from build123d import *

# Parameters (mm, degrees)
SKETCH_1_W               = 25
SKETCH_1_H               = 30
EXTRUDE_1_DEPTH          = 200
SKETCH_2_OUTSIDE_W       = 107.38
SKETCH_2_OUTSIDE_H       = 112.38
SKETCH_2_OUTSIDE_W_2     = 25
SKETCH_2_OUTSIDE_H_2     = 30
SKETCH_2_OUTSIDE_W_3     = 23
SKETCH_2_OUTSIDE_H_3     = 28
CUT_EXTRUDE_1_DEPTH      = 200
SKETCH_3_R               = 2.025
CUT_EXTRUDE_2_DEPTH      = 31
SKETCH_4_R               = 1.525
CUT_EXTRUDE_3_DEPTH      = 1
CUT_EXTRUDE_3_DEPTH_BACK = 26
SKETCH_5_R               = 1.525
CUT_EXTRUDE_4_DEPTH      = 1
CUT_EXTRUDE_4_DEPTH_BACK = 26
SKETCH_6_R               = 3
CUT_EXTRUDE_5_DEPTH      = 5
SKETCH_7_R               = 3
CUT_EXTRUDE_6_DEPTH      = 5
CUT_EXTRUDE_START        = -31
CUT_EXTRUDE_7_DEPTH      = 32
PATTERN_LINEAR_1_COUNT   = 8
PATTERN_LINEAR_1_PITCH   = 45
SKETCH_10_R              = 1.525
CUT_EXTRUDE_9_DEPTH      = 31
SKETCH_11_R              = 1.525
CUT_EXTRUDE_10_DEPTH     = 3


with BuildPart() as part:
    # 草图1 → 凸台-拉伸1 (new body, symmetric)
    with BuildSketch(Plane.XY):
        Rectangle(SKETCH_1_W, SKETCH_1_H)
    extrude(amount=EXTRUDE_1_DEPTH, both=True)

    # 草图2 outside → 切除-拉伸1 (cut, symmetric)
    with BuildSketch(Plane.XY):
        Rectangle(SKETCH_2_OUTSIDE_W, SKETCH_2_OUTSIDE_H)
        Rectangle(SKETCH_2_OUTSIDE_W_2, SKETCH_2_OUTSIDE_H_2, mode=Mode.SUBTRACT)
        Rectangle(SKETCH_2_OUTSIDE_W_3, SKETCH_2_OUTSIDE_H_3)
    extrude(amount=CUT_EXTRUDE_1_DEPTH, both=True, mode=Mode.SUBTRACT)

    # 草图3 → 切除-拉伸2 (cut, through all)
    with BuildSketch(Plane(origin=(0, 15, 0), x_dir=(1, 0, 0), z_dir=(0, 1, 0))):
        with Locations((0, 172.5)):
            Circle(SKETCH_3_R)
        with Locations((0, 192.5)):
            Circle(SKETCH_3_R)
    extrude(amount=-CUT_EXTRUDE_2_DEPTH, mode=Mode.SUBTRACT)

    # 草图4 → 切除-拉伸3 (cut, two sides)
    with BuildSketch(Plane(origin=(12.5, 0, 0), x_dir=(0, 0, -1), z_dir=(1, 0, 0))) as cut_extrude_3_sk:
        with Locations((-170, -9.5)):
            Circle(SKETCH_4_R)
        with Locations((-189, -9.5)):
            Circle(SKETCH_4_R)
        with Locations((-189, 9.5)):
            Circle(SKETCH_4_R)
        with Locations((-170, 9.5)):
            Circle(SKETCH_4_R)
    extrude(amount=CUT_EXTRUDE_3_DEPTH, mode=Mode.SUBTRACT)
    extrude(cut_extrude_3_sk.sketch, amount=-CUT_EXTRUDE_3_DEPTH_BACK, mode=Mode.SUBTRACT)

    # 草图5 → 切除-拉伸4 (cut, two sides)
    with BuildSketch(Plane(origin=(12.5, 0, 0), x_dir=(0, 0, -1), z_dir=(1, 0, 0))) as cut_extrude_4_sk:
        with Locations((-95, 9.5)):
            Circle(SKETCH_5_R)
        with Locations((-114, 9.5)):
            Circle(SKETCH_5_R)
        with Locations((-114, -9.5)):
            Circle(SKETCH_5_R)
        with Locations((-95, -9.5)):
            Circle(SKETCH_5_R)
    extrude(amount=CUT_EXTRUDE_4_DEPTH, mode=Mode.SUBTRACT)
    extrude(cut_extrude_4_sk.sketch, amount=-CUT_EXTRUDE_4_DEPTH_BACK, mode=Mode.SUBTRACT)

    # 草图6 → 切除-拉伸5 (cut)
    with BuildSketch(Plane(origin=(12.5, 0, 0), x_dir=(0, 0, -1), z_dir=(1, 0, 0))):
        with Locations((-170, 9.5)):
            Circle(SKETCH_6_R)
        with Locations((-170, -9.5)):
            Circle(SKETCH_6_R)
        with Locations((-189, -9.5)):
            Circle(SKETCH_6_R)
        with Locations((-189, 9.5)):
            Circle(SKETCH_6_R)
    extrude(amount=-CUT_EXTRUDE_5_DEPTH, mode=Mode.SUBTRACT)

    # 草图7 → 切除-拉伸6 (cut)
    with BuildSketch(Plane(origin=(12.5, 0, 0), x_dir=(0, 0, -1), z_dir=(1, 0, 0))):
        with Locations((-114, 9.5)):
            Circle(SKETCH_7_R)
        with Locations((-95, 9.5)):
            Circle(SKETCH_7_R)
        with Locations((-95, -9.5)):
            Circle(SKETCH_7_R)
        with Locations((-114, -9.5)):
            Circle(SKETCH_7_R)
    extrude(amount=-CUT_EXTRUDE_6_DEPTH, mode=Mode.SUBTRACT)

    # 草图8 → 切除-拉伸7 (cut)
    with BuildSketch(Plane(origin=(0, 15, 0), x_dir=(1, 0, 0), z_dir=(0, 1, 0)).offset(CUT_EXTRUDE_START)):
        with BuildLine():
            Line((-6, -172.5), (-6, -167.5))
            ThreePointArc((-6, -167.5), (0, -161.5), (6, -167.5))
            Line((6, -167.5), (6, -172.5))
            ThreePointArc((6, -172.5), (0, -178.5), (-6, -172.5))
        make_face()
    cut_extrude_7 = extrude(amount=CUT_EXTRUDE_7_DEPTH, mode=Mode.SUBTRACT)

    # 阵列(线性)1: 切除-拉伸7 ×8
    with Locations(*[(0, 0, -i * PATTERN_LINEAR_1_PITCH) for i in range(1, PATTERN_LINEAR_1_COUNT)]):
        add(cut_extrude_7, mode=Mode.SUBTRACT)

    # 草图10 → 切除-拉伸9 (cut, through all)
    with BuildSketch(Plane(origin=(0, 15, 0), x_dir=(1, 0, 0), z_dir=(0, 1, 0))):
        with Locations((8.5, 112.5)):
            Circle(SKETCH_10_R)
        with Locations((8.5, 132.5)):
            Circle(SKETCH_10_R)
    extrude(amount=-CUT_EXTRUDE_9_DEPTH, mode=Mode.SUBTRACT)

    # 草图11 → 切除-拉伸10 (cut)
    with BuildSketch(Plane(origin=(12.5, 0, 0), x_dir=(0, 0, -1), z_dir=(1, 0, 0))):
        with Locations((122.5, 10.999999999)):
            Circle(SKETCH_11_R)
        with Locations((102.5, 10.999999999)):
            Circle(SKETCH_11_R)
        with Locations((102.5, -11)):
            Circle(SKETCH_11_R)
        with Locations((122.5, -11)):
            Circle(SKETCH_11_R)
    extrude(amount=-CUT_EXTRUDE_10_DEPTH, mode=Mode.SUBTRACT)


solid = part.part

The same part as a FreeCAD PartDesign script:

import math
import FreeCAD as App
import Part
import Sketcher

doc = App.newDocument("Part")
params = doc.addObject("Spreadsheet::Sheet", "Params")
for row, (alias, value) in enumerate([
    ("sketch1_width", "25 mm"),
    ("sketch1_height", "30 mm"),
    ("pad1_length", "400 mm"),
    ("sketch2_width", "25 mm"),
    ("sketch2_width2", "23 mm"),
    ("sketch2_height", "30 mm"),
    ("sketch2_height2", "28 mm"),
    ("sketch2_width3", "107.38 mm"),
    ("pocket1_length", "400 mm"),
    ("sketch3_diameter", "4.05 mm"),
    ("sketch4_diameter", "3.05 mm"),
    ("sketch5_diameter", "3.05 mm"),
    ("sketch6_diameter", "6 mm"),
    ("pocket5_length", "5 mm"),
    ("sketch7_diameter", "6 mm"),
    ("pocket6_length", "5 mm"),
    ("sketch8_radius", "6 mm"),
    ("sketch8_height", "5 mm"),
    ("pocket7_length", "32 mm"),
    ("linearpattern_pitch", "45 mm"),
    ("sketch9_diameter", "3.05 mm"),
    ("sketch10_diameter", "3.05 mm"),
    ("pocket9_length", "3 mm"),
], start=1):
    params.set(f"A{row}", alias)
    params.set(f"B{row}", "=" + value)
    params.setAlias(f"B{row}", alias)

body = doc.addObject("PartDesign::Body", "Body")

# Sketch on XY plane
sketch1 = body.newObject("Sketcher::SketchObject", "Sketch")
sketch1.AttachmentSupport = (doc.getObject("XY_Plane"), [""])
sketch1.MapMode = "FlatFace"
sketch1.addGeometry(Part.LineSegment(App.Vector(-12, 15, 0), App.Vector(-12, -15, 0)), False)
sketch1.addGeometry(Part.LineSegment(App.Vector(-12, -15, 0), App.Vector(12, -15, 0)), False)
sketch1.addGeometry(Part.LineSegment(App.Vector(12, -15, 0), App.Vector(12, 15, 0)), False)
sketch1.addGeometry(Part.LineSegment(App.Vector(12, 15, 0), App.Vector(-12, 15, 0)), False)
sketch1.addConstraint(Sketcher.Constraint("Coincident", 0, 2, 1, 1))
sketch1.addConstraint(Sketcher.Constraint("Coincident", 1, 2, 2, 1))
sketch1.addConstraint(Sketcher.Constraint("Coincident", 2, 2, 3, 1))
sketch1.addConstraint(Sketcher.Constraint("Coincident", 3, 2, 0, 1))
sketch1.addConstraint(Sketcher.Constraint("Vertical", 0))
sketch1.addConstraint(Sketcher.Constraint("Horizontal", 1))
sketch1.addConstraint(Sketcher.Constraint("Vertical", 2))
sketch1.addConstraint(Sketcher.Constraint("Horizontal", 3))
sketch1.addConstraint(Sketcher.Constraint("Symmetric", 0, 2, 2, 2, -1, 1))
sketch1.addConstraint(Sketcher.Constraint("DistanceX", 1, 1, 1, 2, 25.0))
sketch1.addConstraint(Sketcher.Constraint("DistanceY", 0, 2, 0, 1, 30.0))
sketch1.setExpression("Constraints[9]", "Params.sketch1_width")
sketch1.setExpression("Constraints[10]", "Params.sketch1_height")
pad1 = body.newObject("PartDesign::Pad", "Pad")
pad1.Profile = sketch1
pad1.setExpression("Length", "Params.pad1_length")
pad1.Midplane = True

# Sketch on XY plane
sketch2 = body.newObject("Sketcher::SketchObject", "Sketch001")
sketch2.AttachmentSupport = (doc.getObject("XY_Plane"), [""])
sketch2.MapMode = "FlatFace"
sketch2.addGeometry(Part.LineSegment(App.Vector(-54, 56, 0), App.Vector(-54, -56, 0)), False)
sketch2.addGeometry(Part.LineSegment(App.Vector(-54, -56, 0), App.Vector(54, -56, 0)), False)
sketch2.addGeometry(Part.LineSegment(App.Vector(54, -56, 0), App.Vector(54, 56, 0)), False)
sketch2.addGeometry(Part.LineSegment(App.Vector(54, 56, 0), App.Vector(-54, 56, 0)), False)
sketch2.addGeometry(Part.LineSegment(App.Vector(12, -15, 0), App.Vector(-12, -15, 0)), False)
sketch2.addGeometry(Part.LineSegment(App.Vector(-12, -15, 0), App.Vector(-12, 15, 0)), False)
sketch2.addGeometry(Part.LineSegment(App.Vector(-12, 15, 0), App.Vector(12, 15, 0)), False)
sketch2.addGeometry(Part.LineSegment(App.Vector(12, 15, 0), App.Vector(12, -15, 0)), False)
sketch2.addGeometry(Part.LineSegment(App.Vector(-12, 14, 0), App.Vector(-12, -14, 0)), False)
sketch2.addGeometry(Part.LineSegment(App.Vector(-12, -14, 0), App.Vector(12, -14, 0)), False)
sketch2.addGeometry(Part.LineSegment(App.Vector(12, -14, 0), App.Vector(12, 14, 0)), False)
sketch2.addGeometry(Part.LineSegment(App.Vector(12, 14, 0), App.Vector(-12, 14, 0)), False)
sketch2.addConstraint(Sketcher.Constraint("Coincident", 0, 2, 1, 1))
sketch2.addConstraint(Sketcher.Constraint("Coincident", 1, 2, 2, 1))
sketch2.addConstraint(Sketcher.Constraint("Coincident", 2, 2, 3, 1))
sketch2.addConstraint(Sketcher.Constraint("Coincident", 3, 2, 0, 1))
sketch2.addConstraint(Sketcher.Constraint("Coincident", 4, 2, 5, 1))
sketch2.addConstraint(Sketcher.Constraint("Coincident", 5, 2, 6, 1))
sketch2.addConstraint(Sketcher.Constraint("Coincident", 6, 2, 7, 1))
sketch2.addConstraint(Sketcher.Constraint("Coincident", 7, 2, 4, 1))
sketch2.addConstraint(Sketcher.Constraint("Coincident", 8, 2, 9, 1))
sketch2.addConstraint(Sketcher.Constraint("Coincident", 9, 2, 10, 1))
sketch2.addConstraint(Sketcher.Constraint("Coincident", 10, 2, 11, 1))
sketch2.addConstraint(Sketcher.Constraint("Coincident", 11, 2, 8, 1))
sketch2.addConstraint(Sketcher.Constraint("Vertical", 0))
sketch2.addConstraint(Sketcher.Constraint("Horizontal", 1))
sketch2.addConstraint(Sketcher.Constraint("Vertical", 2))
sketch2.addConstraint(Sketcher.Constraint("Horizontal", 3))
sketch2.addConstraint(Sketcher.Constraint("Horizontal", 4))
sketch2.addConstraint(Sketcher.Constraint("Vertical", 5))
sketch2.addConstraint(Sketcher.Constraint("Horizontal", 6))
sketch2.addConstraint(Sketcher.Constraint("Vertical", 7))
sketch2.addConstraint(Sketcher.Constraint("Vertical", 8))
sketch2.addConstraint(Sketcher.Constraint("Horizontal", 9))
sketch2.addConstraint(Sketcher.Constraint("Vertical", 10))
sketch2.addConstraint(Sketcher.Constraint("Horizontal", 11))
sketch2.addConstraint(Sketcher.Constraint("Symmetric", 0, 2, 2, 2, -1, 1))
sketch2.addConstraint(Sketcher.Constraint("Symmetric", 4, 2, 6, 2, -1, 1))
sketch2.addConstraint(Sketcher.Constraint("Symmetric", 8, 2, 10, 2, -1, 1))
sketch2.addConstraint(Sketcher.Constraint("DistanceX", 4, 2, 4, 1, 25.0))
sketch2.addConstraint(Sketcher.Constraint("DistanceX", 9, 1, 9, 2, 23.0))
sketch2.addConstraint(Sketcher.Constraint("DistanceY", 5, 1, 5, 2, 30.0))
sketch2.addConstraint(Sketcher.Constraint("DistanceY", 8, 2, 8, 1, 28.0))
sketch2.addConstraint(Sketcher.Constraint("DistanceX", 1, 1, 1, 2, 107.38))
sketch2.addConstraint(Sketcher.Constraint("DistanceY", 0, 2, 0, 1, 112.38))
sketch2.setExpression("Constraints[27]", "Params.sketch2_width")
sketch2.setExpression("Constraints[28]", "Params.sketch2_width2")
sketch2.setExpression("Constraints[29]", "Params.sketch2_height")
sketch2.setExpression("Constraints[30]", "Params.sketch2_height2")
sketch2.setExpression("Constraints[31]", "Params.sketch2_width3")
pocket1 = body.newObject("PartDesign::Pocket", "Pocket")
pocket1.Profile = sketch2
pocket1.setExpression("Length", "Params.pocket1_length")
pocket1.Midplane = True

# Sketch on XZ plane
sketch3 = body.newObject("Sketcher::SketchObject", "Sketch002")
sketch3.AttachmentSupport = (doc.getObject("XZ_Plane"), [""])
sketch3.MapMode = "FlatFace"
sketch3.AttachmentOffset = App.Placement(App.Vector(0, 0, -15), App.Rotation())
sketch3.addGeometry(Part.Circle(App.Vector(0, -172.5, 0), App.Vector(0, 0, 1), 2), False)
sketch3.addGeometry(Part.Circle(App.Vector(0, -192.5, 0), App.Vector(0, 0, 1), 2), False)
sketch3.addConstraint(Sketcher.Constraint("Equal", 0, 1))
sketch3.addConstraint(Sketcher.Constraint("PointOnObject", 0, 3, -2))
sketch3.addConstraint(Sketcher.Constraint("PointOnObject", 1, 3, -2))
sketch3.addConstraint(Sketcher.Constraint("Diameter", 0, 4.05))
sketch3.addConstraint(Sketcher.Constraint("DistanceY", 1, 3, 0, 3, 20.0))
sketch3.addConstraint(Sketcher.Constraint("DistanceY", 0, 3, -1, 1, 172.5))
sketch3.setExpression("Constraints[3]", "Params.sketch3_diameter")
pocket2 = body.newObject("PartDesign::Pocket", "Pocket001")
pocket2.Profile = sketch3
pocket2.Type = "ThroughAll"
pocket2.Reversed = True

# Sketch on YZ plane
sketch4 = body.newObject("Sketcher::SketchObject", "Sketch003")
sketch4.AttachmentSupport = (doc.getObject("YZ_Plane"), [""])
sketch4.MapMode = "FlatFace"
sketch4.AttachmentOffset = App.Placement(App.Vector(0, 0, 12.5), App.Rotation())
sketch4.addGeometry(Part.Circle(App.Vector(-9.5, 170, 0), App.Vector(0, 0, 1), 1.5), False)
sketch4.addGeometry(Part.Circle(App.Vector(-9.5, 189, 0), App.Vector(0, 0, 1), 1.5), False)
sketch4.addGeometry(Part.Circle(App.Vector(9.5, 189, 0), App.Vector(0, 0, 1), 1.5), False)
sketch4.addGeometry(Part.Circle(App.Vector(9.5, 170, 0), App.Vector(0, 0, 1), 1.5), False)
sketch4.addConstraint(Sketcher.Constraint("Equal", 0, 1))
sketch4.addConstraint(Sketcher.Constraint("Equal", 1, 2))
sketch4.addConstraint(Sketcher.Constraint("Equal", 2, 3))
sketch4.addConstraint(Sketcher.Constraint("Symmetric", 1, 3, 2, 3, -2))
sketch4.addConstraint(Sketcher.Constraint("Symmetric", 0, 3, 3, 3, -2))
sketch4.addConstraint(Sketcher.Constraint("Vertical", 0, 3, 1, 3))
sketch4.addConstraint(Sketcher.Constraint("Diameter", 0, 3.05))
sketch4.addConstraint(Sketcher.Constraint("DistanceY", -1, 1, 0, 3, 170.0))
sketch4.addConstraint(Sketcher.Constraint("DistanceY", -1, 1, 1, 3, 189.0))
sketch4.addConstraint(Sketcher.Constraint("DistanceX", 1, 3, 2, 3, 19.0))
sketch4.setExpression("Constraints[6]", "Params.sketch4_diameter")
pocket3 = body.newObject("PartDesign::Pocket", "Pocket002")
pocket3.Profile = sketch4
pocket3.Type = "ThroughAll"
pocket3.Midplane = True

# Sketch on YZ plane
sketch5 = body.newObject("Sketcher::SketchObject", "Sketch004")
sketch5.AttachmentSupport = (doc.getObject("YZ_Plane"), [""])
sketch5.MapMode = "FlatFace"
sketch5.AttachmentOffset = App.Placement(App.Vector(0, 0, 12.5), App.Rotation())
sketch5.addGeometry(Part.Circle(App.Vector(9.5, 95, 0), App.Vector(0, 0, 1), 1.5), False)
sketch5.addGeometry(Part.Circle(App.Vector(9.5, 114, 0), App.Vector(0, 0, 1), 1.5), False)
sketch5.addGeometry(Part.Circle(App.Vector(-9.5, 114, 0), App.Vector(0, 0, 1), 1.5), False)
sketch5.addGeometry(Part.Circle(App.Vector(-9.5, 95, 0), App.Vector(0, 0, 1), 1.5), False)
sketch5.addConstraint(Sketcher.Constraint("Equal", 0, 1))
sketch5.addConstraint(Sketcher.Constraint("Equal", 1, 2))
sketch5.addConstraint(Sketcher.Constraint("Equal", 2, 3))
sketch5.addConstraint(Sketcher.Constraint("Symmetric", 1, 3, 2, 3, -2))
sketch5.addConstraint(Sketcher.Constraint("Symmetric", 0, 3, 3, 3, -2))
sketch5.addConstraint(Sketcher.Constraint("Vertical", 0, 3, 1, 3))
sketch5.addConstraint(Sketcher.Constraint("Diameter", 0, 3.05))
sketch5.addConstraint(Sketcher.Constraint("DistanceY", -1, 1, 0, 3, 95.0))
sketch5.addConstraint(Sketcher.Constraint("DistanceY", -1, 1, 1, 3, 114.0))
sketch5.addConstraint(Sketcher.Constraint("DistanceX", 2, 3, 1, 3, 19.0))
sketch5.setExpression("Constraints[6]", "Params.sketch5_diameter")
pocket4 = body.newObject("PartDesign::Pocket", "Pocket003")
pocket4.Profile = sketch5
pocket4.Type = "ThroughAll"
pocket4.Midplane = True

# Sketch on YZ plane
sketch6 = body.newObject("Sketcher::SketchObject", "Sketch005")
sketch6.AttachmentSupport = (doc.getObject("YZ_Plane"), [""])
sketch6.MapMode = "FlatFace"
sketch6.AttachmentOffset = App.Placement(App.Vector(0, 0, 12.5), App.Rotation())
sketch6.addGeometry(Part.Circle(App.Vector(9.5, 170, 0), App.Vector(0, 0, 1), 3), False)
sketch6.addGeometry(Part.Circle(App.Vector(-9.5, 170, 0), App.Vector(0, 0, 1), 3), False)
sketch6.addGeometry(Part.Circle(App.Vector(-9.5, 189, 0), App.Vector(0, 0, 1), 3), False)
sketch6.addGeometry(Part.Circle(App.Vector(9.5, 189, 0), App.Vector(0, 0, 1), 3), False)
sketch6.addConstraint(Sketcher.Constraint("Equal", 0, 1))
sketch6.addConstraint(Sketcher.Constraint("Equal", 1, 2))
sketch6.addConstraint(Sketcher.Constraint("Equal", 2, 3))
sketch6.addConstraint(Sketcher.Constraint("Symmetric", 0, 3, 1, 3, -2))
sketch6.addConstraint(Sketcher.Constraint("Symmetric", 2, 3, 3, 3, -2))
sketch6.addConstraint(Sketcher.Constraint("Vertical", 1, 3, 2, 3))
sketch6.addConstraint(Sketcher.Constraint("Diameter", 0, 6.0))
sketch6.addConstraint(Sketcher.Constraint("DistanceY", -1, 1, 0, 3, 170.0))
sketch6.addConstraint(Sketcher.Constraint("DistanceY", -1, 1, 2, 3, 189.0))
sketch6.addConstraint(Sketcher.Constraint("DistanceX", 1, 3, 0, 3, 19.0))
sketch6.setExpression("Constraints[6]", "Params.sketch6_diameter")
pocket5 = body.newObject("PartDesign::Pocket", "Pocket004")
pocket5.Profile = sketch6
pocket5.setExpression("Length", "Params.pocket5_length")

# Sketch on YZ plane
sketch7 = body.newObject("Sketcher::SketchObject", "Sketch006")
sketch7.AttachmentSupport = (doc.getObject("YZ_Plane"), [""])
sketch7.MapMode = "FlatFace"
sketch7.AttachmentOffset = App.Placement(App.Vector(0, 0, 12.5), App.Rotation())
sketch7.addGeometry(Part.Circle(App.Vector(9.5, 114, 0), App.Vector(0, 0, 1), 3), False)
sketch7.addGeometry(Part.Circle(App.Vector(9.5, 95, 0), App.Vector(0, 0, 1), 3), False)
sketch7.addGeometry(Part.Circle(App.Vector(-9.5, 95, 0), App.Vector(0, 0, 1), 3), False)
sketch7.addGeometry(Part.Circle(App.Vector(-9.5, 114, 0), App.Vector(0, 0, 1), 3), False)
sketch7.addConstraint(Sketcher.Constraint("Equal", 0, 1))
sketch7.addConstraint(Sketcher.Constraint("Equal", 1, 2))
sketch7.addConstraint(Sketcher.Constraint("Equal", 2, 3))
sketch7.addConstraint(Sketcher.Constraint("Symmetric", 1, 3, 2, 3, -2))
sketch7.addConstraint(Sketcher.Constraint("Symmetric", 0, 3, 3, 3, -2))
sketch7.addConstraint(Sketcher.Constraint("Vertical", 0, 3, 1, 3))
sketch7.addConstraint(Sketcher.Constraint("Diameter", 0, 6.0))
sketch7.addConstraint(Sketcher.Constraint("DistanceY", -1, 1, 0, 3, 114.0))
sketch7.addConstraint(Sketcher.Constraint("DistanceY", -1, 1, 1, 3, 95.0))
sketch7.addConstraint(Sketcher.Constraint("DistanceX", 2, 3, 1, 3, 19.0))
sketch7.setExpression("Constraints[6]", "Params.sketch7_diameter")
pocket6 = body.newObject("PartDesign::Pocket", "Pocket005")
pocket6.Profile = sketch7
pocket6.setExpression("Length", "Params.pocket6_length")

# Sketch on XZ plane
sketch8 = body.newObject("Sketcher::SketchObject", "Sketch007")
sketch8.AttachmentSupport = (doc.getObject("XZ_Plane"), [""])
sketch8.MapMode = "FlatFace"
sketch8.AttachmentOffset = App.Placement(App.Vector(0, 0, 16), App.Rotation())
sketch8.addGeometry(Part.LineSegment(App.Vector(-6, 168, 0), App.Vector(-6, 172, 0)), False)
sketch8.addGeometry(Part.ArcOfCircle(Part.Circle(App.Vector(0, 172, 0), App.Vector(0, 0, 1), 6), math.radians(0), math.radians(180)), False)
sketch8.addGeometry(Part.LineSegment(App.Vector(6, 172, 0), App.Vector(6, 168, 0)), False)
sketch8.addGeometry(Part.ArcOfCircle(Part.Circle(App.Vector(0, 168, 0), App.Vector(0, 0, 1), 6), math.radians(180), math.radians(360)), False)
sketch8.addConstraint(Sketcher.Constraint("Tangent", 0, 2, 1, 2))
sketch8.addConstraint(Sketcher.Constraint("Tangent", 1, 1, 2, 1))
sketch8.addConstraint(Sketcher.Constraint("Tangent", 2, 2, 3, 2))
sketch8.addConstraint(Sketcher.Constraint("Tangent", 3, 1, 0, 1))
sketch8.addConstraint(Sketcher.Constraint("Vertical", 0))
sketch8.addConstraint(Sketcher.Constraint("Vertical", 2))
sketch8.addConstraint(Sketcher.Constraint("PointOnObject", 1, 3, -2))
sketch8.addConstraint(Sketcher.Constraint("Radius", 1, 6.0))
sketch8.addConstraint(Sketcher.Constraint("DistanceY", 0, 1, 0, 2, 5.0))
sketch8.addConstraint(Sketcher.Constraint("DistanceY", -1, 1, 1, 3, 172.5))
sketch8.setExpression("Constraints[7]", "Params.sketch8_radius")
sketch8.setExpression("Constraints[8]", "Params.sketch8_height")
pocket7 = body.newObject("PartDesign::Pocket", "Pocket006")
pocket7.Profile = sketch8
pocket7.setExpression("Length", "Params.pocket7_length")
doc.recompute()

linearpattern = body.newObject("PartDesign::LinearPattern", "LinearPattern")
linearpattern.Originals = [pocket7]
linearpattern.Direction = (doc.getObject("Z_Axis"), [""])
linearpattern.Mode = "offset"
linearpattern.setExpression("Offset", "Params.linearpattern_pitch")
linearpattern.Occurrences = 8
linearpattern.Reversed = True
body.Tip = linearpattern

# Sketch on XZ plane
sketch9 = body.newObject("Sketcher::SketchObject", "Sketch008")
sketch9.AttachmentSupport = (doc.getObject("XZ_Plane"), [""])
sketch9.MapMode = "FlatFace"
sketch9.AttachmentOffset = App.Placement(App.Vector(0, 0, -15), App.Rotation())
sketch9.addGeometry(Part.Circle(App.Vector(8.5, -112.5, 0), App.Vector(0, 0, 1), 1.5), False)
sketch9.addGeometry(Part.Circle(App.Vector(8.5, -132.5, 0), App.Vector(0, 0, 1), 1.5), False)
sketch9.addConstraint(Sketcher.Constraint("Equal", 0, 1))
sketch9.addConstraint(Sketcher.Constraint("Vertical", 0, 3, 1, 3))
sketch9.addConstraint(Sketcher.Constraint("Diameter", 0, 3.05))
sketch9.addConstraint(Sketcher.Constraint("DistanceY", 1, 3, 0, 3, 20.0))
sketch9.addConstraint(Sketcher.Constraint("DistanceX", -1, 1, 0, 3, 8.5))
sketch9.addConstraint(Sketcher.Constraint("DistanceY", 0, 3, -1, 1, 112.5))
sketch9.setExpression("Constraints[2]", "Params.sketch9_diameter")
pocket8 = body.newObject("PartDesign::Pocket", "Pocket007")
pocket8.Profile = sketch9
pocket8.Type = "ThroughAll"
pocket8.Reversed = True

# Sketch on YZ plane
sketch10 = body.newObject("Sketcher::SketchObject", "Sketch009")
sketch10.AttachmentSupport = (doc.getObject("YZ_Plane"), [""])
sketch10.MapMode = "FlatFace"
sketch10.AttachmentOffset = App.Placement(App.Vector(0, 0, 12.5), App.Rotation())
sketch10.addGeometry(Part.Circle(App.Vector(11, -122.5, 0), App.Vector(0, 0, 1), 1.5), False)
sketch10.addGeometry(Part.Circle(App.Vector(11, -102.5, 0), App.Vector(0, 0, 1), 1.5), False)
sketch10.addGeometry(Part.Circle(App.Vector(-11, -102.5, 0), App.Vector(0, 0, 1), 1.5), False)
sketch10.addGeometry(Part.Circle(App.Vector(-11, -122.5, 0), App.Vector(0, 0, 1), 1.5), False)
sketch10.addConstraint(Sketcher.Constraint("Equal", 0, 1))
sketch10.addConstraint(Sketcher.Constraint("Equal", 1, 2))
sketch10.addConstraint(Sketcher.Constraint("Equal", 2, 3))
sketch10.addConstraint(Sketcher.Constraint("Symmetric", 1, 3, 2, 3, -2))
sketch10.addConstraint(Sketcher.Constraint("Symmetric", 0, 3, 3, 3, -2))
sketch10.addConstraint(Sketcher.Constraint("Vertical", 0, 3, 1, 3))
sketch10.addConstraint(Sketcher.Constraint("Diameter", 0, 3.05))
sketch10.addConstraint(Sketcher.Constraint("DistanceX", -1, 1, 0, 3, 11.0))
sketch10.addConstraint(Sketcher.Constraint("DistanceY", 0, 3, 1, 3, 20.0))
sketch10.addConstraint(Sketcher.Constraint("DistanceY", 0, 3, -1, 1, 122.5))
sketch10.setExpression("Constraints[6]", "Params.sketch10_diameter")
pocket9 = body.newObject("PartDesign::Pocket", "Pocket008")
pocket9.Profile = sketch10
pocket9.setExpression("Length", "Params.pocket9_length")

doc.recompute()
